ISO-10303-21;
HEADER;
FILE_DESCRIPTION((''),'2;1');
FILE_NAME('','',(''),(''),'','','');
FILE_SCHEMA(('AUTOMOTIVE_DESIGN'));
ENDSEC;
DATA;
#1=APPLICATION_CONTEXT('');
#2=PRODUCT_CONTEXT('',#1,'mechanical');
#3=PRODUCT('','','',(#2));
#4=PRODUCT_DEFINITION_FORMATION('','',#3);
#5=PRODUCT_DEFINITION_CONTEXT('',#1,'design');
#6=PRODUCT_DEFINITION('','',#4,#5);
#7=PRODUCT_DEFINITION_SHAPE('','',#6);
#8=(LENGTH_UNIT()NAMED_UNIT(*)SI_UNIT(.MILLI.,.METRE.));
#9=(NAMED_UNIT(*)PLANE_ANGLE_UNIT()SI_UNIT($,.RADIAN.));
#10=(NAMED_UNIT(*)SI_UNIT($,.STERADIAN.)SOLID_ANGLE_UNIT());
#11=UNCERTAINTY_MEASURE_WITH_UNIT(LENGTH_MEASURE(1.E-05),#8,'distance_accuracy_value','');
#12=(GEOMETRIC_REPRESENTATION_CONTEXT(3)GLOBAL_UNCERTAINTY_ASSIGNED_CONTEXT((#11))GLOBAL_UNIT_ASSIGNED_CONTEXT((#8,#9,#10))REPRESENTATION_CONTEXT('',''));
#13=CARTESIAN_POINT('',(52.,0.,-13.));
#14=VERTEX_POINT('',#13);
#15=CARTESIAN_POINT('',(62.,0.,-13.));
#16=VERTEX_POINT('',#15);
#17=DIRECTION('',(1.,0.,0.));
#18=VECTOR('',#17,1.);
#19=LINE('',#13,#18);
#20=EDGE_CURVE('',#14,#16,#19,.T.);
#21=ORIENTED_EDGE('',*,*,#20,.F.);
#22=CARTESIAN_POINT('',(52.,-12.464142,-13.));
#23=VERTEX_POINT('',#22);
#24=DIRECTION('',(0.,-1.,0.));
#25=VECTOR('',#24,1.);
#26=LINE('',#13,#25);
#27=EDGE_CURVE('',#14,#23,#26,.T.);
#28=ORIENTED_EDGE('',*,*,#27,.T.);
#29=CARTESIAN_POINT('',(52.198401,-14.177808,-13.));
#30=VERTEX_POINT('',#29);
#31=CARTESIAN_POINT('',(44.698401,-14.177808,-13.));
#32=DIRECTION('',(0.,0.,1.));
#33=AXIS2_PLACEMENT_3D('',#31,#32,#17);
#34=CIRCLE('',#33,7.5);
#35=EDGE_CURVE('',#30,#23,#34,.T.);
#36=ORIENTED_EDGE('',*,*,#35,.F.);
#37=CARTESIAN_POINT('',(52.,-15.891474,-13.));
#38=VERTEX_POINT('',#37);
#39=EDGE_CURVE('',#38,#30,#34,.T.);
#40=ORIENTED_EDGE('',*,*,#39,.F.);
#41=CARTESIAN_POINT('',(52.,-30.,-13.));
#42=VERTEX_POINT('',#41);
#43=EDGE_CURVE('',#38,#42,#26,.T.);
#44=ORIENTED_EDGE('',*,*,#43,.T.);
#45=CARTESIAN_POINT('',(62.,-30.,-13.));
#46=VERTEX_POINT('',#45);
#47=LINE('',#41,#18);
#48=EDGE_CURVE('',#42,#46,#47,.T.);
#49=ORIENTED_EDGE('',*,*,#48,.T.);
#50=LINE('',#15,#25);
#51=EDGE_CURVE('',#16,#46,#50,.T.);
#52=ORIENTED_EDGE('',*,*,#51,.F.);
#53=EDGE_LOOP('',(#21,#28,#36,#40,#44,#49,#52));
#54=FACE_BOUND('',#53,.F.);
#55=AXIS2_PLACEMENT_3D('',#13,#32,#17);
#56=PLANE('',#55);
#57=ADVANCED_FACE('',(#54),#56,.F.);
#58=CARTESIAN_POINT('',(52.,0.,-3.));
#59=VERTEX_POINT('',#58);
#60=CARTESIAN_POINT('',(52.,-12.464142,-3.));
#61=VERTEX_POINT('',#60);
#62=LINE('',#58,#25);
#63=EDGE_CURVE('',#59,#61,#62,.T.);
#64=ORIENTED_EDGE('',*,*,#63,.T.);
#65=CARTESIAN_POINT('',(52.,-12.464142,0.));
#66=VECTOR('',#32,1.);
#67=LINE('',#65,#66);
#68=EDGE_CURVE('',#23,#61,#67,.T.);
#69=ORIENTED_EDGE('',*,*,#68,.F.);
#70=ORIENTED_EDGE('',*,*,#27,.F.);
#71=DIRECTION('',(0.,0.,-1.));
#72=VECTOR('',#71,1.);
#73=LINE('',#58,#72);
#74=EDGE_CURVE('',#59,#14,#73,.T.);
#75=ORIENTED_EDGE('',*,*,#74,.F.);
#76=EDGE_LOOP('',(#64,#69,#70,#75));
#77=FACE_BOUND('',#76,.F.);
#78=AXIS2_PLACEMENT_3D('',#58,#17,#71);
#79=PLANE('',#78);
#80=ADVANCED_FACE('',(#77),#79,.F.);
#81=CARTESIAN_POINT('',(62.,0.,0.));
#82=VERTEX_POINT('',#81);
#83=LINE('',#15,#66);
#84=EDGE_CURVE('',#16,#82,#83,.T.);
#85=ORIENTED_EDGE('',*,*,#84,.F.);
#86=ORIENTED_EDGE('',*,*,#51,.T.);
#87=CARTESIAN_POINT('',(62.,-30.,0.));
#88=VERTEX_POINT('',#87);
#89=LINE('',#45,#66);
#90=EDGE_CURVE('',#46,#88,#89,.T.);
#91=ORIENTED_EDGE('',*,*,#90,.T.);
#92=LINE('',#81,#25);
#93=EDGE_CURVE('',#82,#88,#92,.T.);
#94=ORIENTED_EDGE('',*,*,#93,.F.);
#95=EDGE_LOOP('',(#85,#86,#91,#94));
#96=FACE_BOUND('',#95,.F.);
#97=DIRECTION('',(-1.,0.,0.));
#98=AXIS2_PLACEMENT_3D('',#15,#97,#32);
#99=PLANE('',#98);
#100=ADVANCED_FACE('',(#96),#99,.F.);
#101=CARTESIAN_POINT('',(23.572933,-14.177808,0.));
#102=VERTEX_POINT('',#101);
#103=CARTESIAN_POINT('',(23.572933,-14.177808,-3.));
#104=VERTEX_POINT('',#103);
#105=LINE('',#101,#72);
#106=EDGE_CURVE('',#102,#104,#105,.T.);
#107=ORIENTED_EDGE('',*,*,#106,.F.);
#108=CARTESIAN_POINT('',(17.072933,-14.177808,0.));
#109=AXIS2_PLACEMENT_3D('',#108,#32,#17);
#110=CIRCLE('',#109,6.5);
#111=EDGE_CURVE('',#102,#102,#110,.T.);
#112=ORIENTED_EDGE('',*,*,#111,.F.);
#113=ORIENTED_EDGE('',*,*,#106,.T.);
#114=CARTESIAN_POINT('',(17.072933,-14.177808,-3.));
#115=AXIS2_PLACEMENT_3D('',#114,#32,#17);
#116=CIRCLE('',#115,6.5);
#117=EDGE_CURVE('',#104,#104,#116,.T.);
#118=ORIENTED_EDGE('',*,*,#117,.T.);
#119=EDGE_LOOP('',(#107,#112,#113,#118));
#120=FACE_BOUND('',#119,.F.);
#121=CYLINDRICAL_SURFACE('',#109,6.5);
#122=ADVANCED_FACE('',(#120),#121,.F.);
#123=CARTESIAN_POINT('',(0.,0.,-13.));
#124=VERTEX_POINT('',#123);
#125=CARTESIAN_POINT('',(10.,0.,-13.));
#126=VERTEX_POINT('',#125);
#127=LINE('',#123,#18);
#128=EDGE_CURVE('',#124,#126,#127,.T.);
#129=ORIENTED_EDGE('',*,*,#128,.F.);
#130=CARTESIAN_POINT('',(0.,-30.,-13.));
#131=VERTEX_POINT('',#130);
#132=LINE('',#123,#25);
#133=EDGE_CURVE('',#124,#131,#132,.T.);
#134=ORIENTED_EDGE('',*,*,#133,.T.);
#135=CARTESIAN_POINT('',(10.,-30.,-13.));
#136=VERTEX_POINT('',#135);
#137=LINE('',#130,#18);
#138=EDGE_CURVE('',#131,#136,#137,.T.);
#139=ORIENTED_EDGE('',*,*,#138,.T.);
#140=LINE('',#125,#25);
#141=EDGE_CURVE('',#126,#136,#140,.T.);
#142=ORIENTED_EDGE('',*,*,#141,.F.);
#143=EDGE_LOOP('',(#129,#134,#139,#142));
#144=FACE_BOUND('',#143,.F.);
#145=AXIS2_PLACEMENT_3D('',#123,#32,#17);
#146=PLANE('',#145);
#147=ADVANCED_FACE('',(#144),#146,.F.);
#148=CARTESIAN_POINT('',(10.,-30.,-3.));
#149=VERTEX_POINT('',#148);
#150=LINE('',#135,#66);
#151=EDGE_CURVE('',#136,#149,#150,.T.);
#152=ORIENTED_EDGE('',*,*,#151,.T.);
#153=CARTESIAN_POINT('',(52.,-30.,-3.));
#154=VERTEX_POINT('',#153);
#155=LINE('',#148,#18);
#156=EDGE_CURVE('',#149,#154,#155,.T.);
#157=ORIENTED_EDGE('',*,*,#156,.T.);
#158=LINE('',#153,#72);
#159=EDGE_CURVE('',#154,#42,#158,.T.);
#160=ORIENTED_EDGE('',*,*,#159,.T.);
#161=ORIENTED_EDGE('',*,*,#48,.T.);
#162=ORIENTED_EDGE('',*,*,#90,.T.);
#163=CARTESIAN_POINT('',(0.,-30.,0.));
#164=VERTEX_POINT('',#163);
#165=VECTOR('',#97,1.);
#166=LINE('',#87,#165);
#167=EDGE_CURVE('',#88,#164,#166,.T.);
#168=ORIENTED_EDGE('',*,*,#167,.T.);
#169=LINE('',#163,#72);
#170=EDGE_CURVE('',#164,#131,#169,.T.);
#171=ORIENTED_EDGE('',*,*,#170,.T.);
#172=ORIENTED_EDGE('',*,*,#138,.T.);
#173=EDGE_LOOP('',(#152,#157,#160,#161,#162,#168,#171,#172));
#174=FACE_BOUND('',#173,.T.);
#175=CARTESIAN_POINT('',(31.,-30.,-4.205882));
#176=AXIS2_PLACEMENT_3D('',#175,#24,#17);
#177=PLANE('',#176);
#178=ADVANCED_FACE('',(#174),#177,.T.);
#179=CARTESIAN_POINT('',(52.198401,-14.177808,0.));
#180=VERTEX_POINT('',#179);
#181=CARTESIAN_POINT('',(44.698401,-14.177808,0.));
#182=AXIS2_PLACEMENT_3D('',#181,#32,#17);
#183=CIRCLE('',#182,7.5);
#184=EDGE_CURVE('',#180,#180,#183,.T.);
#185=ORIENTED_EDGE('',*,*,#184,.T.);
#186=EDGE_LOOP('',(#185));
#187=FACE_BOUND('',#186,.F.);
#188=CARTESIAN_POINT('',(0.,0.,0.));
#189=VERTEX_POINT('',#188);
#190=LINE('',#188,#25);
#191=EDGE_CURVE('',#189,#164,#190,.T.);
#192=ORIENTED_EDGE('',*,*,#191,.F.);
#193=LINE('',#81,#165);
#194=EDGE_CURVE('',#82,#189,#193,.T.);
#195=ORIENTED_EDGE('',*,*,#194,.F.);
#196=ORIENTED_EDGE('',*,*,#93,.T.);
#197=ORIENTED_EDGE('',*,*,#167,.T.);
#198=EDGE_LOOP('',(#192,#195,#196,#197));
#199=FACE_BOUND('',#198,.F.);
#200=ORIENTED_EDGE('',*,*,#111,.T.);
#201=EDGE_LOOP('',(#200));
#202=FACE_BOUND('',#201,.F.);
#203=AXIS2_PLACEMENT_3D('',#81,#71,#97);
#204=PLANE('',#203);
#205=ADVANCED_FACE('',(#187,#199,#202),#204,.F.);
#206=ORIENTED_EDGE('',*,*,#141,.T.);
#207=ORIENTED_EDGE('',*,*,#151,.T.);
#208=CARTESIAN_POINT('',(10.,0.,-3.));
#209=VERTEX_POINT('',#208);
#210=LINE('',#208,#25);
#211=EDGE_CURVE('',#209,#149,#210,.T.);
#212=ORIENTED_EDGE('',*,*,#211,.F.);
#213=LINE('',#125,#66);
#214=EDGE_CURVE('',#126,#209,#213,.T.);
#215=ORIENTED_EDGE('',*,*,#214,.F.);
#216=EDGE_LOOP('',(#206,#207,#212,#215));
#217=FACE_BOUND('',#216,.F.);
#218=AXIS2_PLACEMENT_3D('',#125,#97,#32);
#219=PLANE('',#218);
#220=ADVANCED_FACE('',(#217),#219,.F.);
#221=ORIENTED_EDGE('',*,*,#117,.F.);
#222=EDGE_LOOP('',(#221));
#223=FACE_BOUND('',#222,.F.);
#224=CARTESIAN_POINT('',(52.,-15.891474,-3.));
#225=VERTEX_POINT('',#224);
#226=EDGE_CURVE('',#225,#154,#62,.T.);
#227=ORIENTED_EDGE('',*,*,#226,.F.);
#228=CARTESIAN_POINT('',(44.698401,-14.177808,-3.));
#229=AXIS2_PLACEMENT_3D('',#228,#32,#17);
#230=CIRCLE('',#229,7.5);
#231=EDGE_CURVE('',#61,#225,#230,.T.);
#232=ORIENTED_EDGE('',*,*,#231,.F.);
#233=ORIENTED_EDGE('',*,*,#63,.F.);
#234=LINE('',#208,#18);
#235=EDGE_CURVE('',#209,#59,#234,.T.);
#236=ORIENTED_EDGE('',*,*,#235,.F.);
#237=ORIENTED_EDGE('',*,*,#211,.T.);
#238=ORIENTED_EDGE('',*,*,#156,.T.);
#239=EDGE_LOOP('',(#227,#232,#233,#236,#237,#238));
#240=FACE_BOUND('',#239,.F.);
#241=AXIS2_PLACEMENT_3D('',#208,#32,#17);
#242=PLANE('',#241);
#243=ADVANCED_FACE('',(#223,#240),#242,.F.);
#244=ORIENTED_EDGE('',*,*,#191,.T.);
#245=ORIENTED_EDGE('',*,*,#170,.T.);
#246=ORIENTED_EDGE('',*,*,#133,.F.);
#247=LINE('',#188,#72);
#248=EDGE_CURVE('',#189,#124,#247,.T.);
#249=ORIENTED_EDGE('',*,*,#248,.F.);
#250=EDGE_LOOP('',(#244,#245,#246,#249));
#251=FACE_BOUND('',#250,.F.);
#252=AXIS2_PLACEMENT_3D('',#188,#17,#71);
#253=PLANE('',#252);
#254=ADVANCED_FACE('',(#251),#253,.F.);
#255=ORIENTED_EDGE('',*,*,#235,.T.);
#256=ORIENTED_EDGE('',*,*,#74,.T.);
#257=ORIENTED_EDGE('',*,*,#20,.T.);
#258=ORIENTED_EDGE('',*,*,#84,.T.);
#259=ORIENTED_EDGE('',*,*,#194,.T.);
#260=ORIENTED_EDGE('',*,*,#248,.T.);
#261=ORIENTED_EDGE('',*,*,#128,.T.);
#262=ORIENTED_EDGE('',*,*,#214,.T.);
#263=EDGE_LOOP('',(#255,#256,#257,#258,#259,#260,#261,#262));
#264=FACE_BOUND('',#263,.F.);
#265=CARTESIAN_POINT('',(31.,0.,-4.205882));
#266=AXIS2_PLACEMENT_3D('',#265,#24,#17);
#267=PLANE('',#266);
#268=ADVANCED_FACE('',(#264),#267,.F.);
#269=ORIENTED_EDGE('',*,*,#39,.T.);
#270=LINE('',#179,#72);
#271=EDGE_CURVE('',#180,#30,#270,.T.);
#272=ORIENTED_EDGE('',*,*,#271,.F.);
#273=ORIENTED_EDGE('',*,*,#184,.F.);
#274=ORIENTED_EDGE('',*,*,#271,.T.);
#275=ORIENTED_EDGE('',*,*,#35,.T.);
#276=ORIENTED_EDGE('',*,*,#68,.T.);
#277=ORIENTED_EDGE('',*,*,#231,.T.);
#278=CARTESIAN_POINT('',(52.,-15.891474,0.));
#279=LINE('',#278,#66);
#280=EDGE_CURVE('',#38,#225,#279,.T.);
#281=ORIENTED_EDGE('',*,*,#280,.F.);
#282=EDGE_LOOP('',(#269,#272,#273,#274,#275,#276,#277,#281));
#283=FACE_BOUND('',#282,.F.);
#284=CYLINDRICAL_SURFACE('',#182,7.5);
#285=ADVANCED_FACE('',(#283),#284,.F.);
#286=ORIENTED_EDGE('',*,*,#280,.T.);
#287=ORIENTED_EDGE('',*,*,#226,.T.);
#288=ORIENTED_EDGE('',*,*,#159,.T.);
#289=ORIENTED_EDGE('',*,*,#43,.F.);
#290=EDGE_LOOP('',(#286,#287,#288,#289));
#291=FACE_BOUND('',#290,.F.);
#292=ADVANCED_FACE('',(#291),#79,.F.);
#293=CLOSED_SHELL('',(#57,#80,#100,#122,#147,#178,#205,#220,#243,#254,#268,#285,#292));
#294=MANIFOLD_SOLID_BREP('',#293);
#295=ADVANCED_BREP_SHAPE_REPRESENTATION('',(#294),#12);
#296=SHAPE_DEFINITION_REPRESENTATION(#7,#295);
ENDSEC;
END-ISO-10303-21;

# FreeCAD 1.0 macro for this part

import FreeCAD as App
import Part
import Sketcher

doc = App.newDocument("Part")
body = doc.addObject("PartDesign::Body", "Body")

# Sketch on XZ plane
sketch1 = doc.addObject("Sketcher::SketchObject", "Sketch")
body.addObject(sketch1)
sketch1.AttachmentSupport = (doc.XZ_Plane, [""])
sketch1.MapMode = "FlatFace"
sketch1.addGeometry(Part.LineSegment(App.Vector(62, 0, 0), App.Vector(0, 0, 0)), False)
sketch1.addGeometry(Part.LineSegment(App.Vector(0, 0, 0), App.Vector(0, -13, 0)), False)
sketch1.addGeometry(Part.LineSegment(App.Vector(0, -13, 0), App.Vector(10, -13, 0)), False)
sketch1.addGeometry(Part.LineSegment(App.Vector(10, -13, 0), App.Vector(10, -3, 0)), False)
sketch1.addGeometry(Part.LineSegment(App.Vector(10, -3, 0), App.Vector(52, -3, 0)), False)
sketch1.addGeometry(Part.LineSegment(App.Vector(52, -3, 0), App.Vector(52, -13, 0)), False)
sketch1.addGeometry(Part.LineSegment(App.Vector(52, -13, 0), App.Vector(62, -13, 0)), False)
sketch1.addGeometry(Part.LineSegment(App.Vector(62, -13, 0), App.Vector(62, 0, 0)), False)
sketch1.addConstraint(Sketcher.Constraint("Coincident", 0, 2, 1, 1))
sketch1.addConstraint(Sketcher.Constraint("Coincident", 1, 2, 2, 1))
sketch1.addConstraint(Sketcher.Constraint("Coincident", 2, 2, 3, 1))
sketch1.addConstraint(Sketcher.Constraint("Coincident", 3, 2, 4, 1))
sketch1.addConstraint(Sketcher.Constraint("Coincident", 4, 2, 5, 1))
sketch1.addConstraint(Sketcher.Constraint("Coincident", 5, 2, 6, 1))
sketch1.addConstraint(Sketcher.Constraint("Coincident", 6, 2, 7, 1))
sketch1.addConstraint(Sketcher.Constraint("Coincident", 7, 2, 0, 1))
sketch1.addConstraint(Sketcher.Constraint("Horizontal", 0))
sketch1.addConstraint(Sketcher.Constraint("Vertical", 1))
sketch1.addConstraint(Sketcher.Constraint("Horizontal", 2))
sketch1.addConstraint(Sketcher.Constraint("Vertical", 3))
sketch1.addConstraint(Sketcher.Constraint("Horizontal", 4))
sketch1.addConstraint(Sketcher.Constraint("Vertical", 5))
sketch1.addConstraint(Sketcher.Constraint("Horizontal", 6))
sketch1.addConstraint(Sketcher.Constraint("Vertical", 7))
sketch1.addConstraint(Sketcher.Constraint("Coincident", 0, 2, -1, 1))
sketch1.addConstraint(Sketcher.Constraint("Horizontal", 2, 2, 5, 2))
sketch1.addConstraint(Sketcher.Constraint("Equal", 2, 6))
sketch1.addConstraint(Sketcher.Constraint("Equal", 6, 3))
sketch1.addConstraint(Sketcher.Constraint("DistanceX", 0, 2, 0, 1, 62.0))
sketch1.addConstraint(Sketcher.Constraint("DistanceX", 2, 1, 2, 2, 10.0))
sketch1.addConstraint(Sketcher.Constraint("DistanceY", 1, 2, 1, 1, 13.0))
pad1 = doc.addObject("PartDesign::Pad", "Pad")
body.addObject(pad1)
pad1.Profile = sketch1
pad1.Length = 30

# Sketch on XY plane
sketch2 = doc.addObject("Sketcher::SketchObject", "Sketch001")
body.addObject(sketch2)
sketch2.AttachmentSupport = (doc.XY_Plane, [""])
sketch2.MapMode = "FlatFace"
sketch2.addGeometry(Part.Circle(App.Vector(45, -14, 0), App.Vector(0, 0, 1), 8), False)
sketch2.addGeometry(Part.Circle(App.Vector(17, -14, 0), App.Vector(0, 0, 1), 6), False)
sketch2.addConstraint(Sketcher.Constraint("Horizontal", 0, 3, 1, 3))
sketch2.addConstraint(Sketcher.Constraint("Diameter", 0, 15.0))
sketch2.addConstraint(Sketcher.Constraint("Diameter", 1, 13.0))
sketch2.addConstraint(Sketcher.Constraint("DistanceX", -1, 1, 0, 3, 44.698401))
sketch2.addConstraint(Sketcher.Constraint("DistanceY", 0, 3, -1, 1, 14.177808))
sketch2.addConstraint(Sketcher.Constraint("DistanceX", -1, 1, 1, 3, 17.072933))
pocket1 = doc.addObject("PartDesign::Pocket", "Pocket")
body.addObject(pocket1)
pocket1.Profile = sketch2
pocket1.Type = "ThroughAll"

doc.recompute()
